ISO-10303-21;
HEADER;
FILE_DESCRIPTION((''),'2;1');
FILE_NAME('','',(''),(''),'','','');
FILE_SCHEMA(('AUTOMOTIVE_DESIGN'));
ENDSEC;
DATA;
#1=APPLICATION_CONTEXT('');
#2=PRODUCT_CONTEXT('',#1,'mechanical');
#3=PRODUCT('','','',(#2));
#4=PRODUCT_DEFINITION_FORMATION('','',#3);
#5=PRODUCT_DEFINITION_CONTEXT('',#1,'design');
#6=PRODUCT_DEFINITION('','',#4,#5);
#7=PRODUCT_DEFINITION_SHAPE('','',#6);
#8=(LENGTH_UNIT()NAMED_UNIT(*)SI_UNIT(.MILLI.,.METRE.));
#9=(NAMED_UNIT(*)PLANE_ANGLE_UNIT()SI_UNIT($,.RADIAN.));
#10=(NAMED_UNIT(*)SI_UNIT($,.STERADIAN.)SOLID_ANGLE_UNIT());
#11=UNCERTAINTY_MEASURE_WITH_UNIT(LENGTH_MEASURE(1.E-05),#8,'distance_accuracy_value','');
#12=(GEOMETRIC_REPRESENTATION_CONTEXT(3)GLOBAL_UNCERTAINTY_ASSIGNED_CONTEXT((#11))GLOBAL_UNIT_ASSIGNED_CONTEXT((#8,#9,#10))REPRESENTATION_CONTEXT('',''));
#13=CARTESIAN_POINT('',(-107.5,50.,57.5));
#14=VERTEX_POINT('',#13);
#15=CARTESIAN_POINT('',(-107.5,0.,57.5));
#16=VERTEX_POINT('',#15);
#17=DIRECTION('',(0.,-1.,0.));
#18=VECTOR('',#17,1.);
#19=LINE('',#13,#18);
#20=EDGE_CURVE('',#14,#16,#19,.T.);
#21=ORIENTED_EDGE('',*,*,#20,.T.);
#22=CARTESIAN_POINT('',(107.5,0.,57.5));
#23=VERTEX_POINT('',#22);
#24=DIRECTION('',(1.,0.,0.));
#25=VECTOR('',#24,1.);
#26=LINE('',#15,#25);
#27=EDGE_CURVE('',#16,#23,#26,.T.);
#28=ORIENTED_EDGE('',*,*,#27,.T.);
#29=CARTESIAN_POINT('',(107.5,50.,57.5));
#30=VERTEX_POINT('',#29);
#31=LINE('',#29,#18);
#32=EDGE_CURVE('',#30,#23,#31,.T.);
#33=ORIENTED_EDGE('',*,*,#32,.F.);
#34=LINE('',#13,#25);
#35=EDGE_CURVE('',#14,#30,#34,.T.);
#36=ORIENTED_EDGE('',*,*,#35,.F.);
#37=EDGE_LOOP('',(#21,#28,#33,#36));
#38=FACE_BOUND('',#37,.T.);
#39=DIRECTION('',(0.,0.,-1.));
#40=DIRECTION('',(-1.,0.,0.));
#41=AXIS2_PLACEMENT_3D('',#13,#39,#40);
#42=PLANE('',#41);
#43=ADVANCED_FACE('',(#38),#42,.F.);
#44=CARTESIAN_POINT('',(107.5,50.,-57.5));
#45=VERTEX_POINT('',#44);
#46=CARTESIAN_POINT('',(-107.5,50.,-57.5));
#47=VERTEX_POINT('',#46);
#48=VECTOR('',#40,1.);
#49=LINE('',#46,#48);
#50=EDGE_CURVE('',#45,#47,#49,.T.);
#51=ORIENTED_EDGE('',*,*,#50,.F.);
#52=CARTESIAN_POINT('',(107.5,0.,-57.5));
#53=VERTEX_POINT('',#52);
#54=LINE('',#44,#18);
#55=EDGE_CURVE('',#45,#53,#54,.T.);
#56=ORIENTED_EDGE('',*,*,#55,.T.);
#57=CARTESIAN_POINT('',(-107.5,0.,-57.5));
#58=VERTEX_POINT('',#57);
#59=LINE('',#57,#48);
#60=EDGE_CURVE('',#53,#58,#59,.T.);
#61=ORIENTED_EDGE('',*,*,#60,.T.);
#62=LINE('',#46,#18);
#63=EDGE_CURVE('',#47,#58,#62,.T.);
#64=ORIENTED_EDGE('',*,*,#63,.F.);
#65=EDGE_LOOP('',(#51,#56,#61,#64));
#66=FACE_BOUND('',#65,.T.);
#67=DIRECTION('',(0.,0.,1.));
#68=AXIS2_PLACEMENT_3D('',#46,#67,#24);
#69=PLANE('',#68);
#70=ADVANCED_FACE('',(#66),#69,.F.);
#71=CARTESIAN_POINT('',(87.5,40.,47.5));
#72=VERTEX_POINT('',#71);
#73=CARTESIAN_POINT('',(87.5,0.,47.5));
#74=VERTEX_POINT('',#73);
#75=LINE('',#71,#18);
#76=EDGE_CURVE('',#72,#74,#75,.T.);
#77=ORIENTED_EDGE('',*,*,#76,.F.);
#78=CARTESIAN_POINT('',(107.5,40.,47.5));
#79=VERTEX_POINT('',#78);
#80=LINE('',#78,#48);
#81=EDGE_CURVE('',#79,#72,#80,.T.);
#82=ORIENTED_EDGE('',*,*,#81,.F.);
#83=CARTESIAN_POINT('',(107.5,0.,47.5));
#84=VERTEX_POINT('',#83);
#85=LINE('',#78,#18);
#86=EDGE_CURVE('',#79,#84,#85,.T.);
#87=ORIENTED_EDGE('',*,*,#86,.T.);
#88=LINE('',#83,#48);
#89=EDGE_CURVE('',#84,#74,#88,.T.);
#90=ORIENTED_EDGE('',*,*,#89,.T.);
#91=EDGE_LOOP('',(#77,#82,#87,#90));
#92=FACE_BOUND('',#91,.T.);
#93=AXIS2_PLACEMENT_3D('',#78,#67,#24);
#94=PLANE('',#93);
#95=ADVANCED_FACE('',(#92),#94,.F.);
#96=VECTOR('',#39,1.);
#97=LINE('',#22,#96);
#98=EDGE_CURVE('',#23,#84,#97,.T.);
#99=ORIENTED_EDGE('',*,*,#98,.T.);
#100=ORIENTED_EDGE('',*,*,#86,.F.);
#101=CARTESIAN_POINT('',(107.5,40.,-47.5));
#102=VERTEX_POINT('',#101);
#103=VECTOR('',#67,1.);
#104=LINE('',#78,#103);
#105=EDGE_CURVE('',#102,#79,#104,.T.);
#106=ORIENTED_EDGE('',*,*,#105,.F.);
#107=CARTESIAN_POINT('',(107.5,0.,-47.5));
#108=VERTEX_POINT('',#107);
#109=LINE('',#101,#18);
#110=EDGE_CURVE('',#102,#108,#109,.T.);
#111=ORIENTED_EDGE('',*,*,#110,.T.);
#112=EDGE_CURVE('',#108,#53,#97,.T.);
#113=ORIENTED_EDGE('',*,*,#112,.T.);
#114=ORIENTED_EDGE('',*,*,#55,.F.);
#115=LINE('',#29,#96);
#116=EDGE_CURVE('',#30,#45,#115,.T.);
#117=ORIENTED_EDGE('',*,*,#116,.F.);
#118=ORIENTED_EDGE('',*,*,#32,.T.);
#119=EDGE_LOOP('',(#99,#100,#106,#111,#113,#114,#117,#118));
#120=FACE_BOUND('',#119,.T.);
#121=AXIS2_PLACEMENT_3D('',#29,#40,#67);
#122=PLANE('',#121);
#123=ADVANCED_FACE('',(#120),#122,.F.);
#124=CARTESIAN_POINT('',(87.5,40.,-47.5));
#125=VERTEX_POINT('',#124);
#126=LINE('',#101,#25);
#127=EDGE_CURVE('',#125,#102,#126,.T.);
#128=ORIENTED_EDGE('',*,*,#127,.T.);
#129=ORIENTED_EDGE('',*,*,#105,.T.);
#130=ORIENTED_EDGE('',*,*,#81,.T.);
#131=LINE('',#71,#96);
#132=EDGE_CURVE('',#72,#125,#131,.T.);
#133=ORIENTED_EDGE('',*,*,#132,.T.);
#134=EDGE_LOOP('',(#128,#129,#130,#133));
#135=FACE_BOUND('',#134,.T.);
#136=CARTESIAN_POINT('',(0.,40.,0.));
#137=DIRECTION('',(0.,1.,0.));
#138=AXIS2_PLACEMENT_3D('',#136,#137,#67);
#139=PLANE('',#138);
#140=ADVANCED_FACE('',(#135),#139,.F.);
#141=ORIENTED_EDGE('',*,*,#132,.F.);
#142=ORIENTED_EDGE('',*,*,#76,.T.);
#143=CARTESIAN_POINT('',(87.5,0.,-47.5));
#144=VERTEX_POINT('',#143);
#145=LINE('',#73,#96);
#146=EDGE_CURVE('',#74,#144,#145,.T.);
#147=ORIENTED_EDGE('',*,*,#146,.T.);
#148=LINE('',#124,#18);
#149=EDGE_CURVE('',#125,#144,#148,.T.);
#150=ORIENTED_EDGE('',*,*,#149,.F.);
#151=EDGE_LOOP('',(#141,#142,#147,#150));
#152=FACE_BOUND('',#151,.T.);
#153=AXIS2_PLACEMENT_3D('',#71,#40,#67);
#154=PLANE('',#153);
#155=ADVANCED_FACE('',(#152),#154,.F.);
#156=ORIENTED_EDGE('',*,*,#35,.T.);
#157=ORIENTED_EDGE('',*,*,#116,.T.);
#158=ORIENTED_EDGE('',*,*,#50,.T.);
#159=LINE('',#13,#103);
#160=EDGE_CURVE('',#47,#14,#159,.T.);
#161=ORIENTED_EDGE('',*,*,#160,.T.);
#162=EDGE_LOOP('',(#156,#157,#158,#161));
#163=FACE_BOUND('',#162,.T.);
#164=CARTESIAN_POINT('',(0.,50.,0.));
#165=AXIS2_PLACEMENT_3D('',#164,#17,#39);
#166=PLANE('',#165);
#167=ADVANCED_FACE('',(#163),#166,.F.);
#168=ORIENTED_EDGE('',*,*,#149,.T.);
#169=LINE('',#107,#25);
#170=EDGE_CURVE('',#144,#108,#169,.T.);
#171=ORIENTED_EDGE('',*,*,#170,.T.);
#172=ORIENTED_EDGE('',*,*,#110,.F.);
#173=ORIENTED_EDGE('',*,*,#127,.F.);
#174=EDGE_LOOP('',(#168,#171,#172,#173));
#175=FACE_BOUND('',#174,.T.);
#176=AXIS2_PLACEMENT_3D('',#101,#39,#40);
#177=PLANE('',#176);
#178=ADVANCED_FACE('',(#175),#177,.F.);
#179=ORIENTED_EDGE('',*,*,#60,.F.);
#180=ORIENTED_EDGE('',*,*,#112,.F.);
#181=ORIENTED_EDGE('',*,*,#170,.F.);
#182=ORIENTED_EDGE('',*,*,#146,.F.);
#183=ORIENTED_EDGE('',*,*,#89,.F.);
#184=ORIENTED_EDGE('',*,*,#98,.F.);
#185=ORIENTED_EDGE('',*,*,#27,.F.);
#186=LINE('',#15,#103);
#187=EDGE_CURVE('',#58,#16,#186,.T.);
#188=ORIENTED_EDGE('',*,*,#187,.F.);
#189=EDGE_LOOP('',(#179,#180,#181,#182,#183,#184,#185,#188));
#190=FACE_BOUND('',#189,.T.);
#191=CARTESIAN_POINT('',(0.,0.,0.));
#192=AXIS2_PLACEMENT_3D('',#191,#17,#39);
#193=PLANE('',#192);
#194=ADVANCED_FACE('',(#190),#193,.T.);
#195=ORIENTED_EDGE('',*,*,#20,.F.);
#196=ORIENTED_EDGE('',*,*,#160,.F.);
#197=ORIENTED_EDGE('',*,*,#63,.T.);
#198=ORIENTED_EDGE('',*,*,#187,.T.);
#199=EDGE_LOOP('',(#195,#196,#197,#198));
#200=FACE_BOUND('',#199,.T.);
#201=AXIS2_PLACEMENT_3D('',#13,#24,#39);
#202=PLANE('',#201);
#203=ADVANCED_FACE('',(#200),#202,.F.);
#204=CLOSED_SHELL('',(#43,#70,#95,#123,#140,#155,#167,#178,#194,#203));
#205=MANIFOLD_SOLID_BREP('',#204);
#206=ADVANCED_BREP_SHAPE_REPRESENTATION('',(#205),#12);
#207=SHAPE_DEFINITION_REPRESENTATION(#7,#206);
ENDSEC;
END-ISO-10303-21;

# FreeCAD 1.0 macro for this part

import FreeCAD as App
import Part
import Sketcher

doc = App.newDocument("Part")
body = doc.addObject("PartDesign::Body", "Body")

# Sketch on XZ plane
sketch1 = doc.addObject("Sketcher::SketchObject", "Sketch")
body.addObject(sketch1)
sketch1.AttachmentSupport = (doc.XZ_Plane, [""])
sketch1.MapMode = "FlatFace"
sketch1.addGeometry([
    Part.LineSegment(App.Vector(-107.5, -57.5, 0), App.Vector(-107.5, 57.5, 0)),
    Part.LineSegment(App.Vector(-107.5, 57.5, 0), App.Vector(107.5, 57.5, 0)),
    Part.LineSegment(App.Vector(107.5, 57.5, 0), App.Vector(107.5, -57.5, 0)),
    Part.LineSegment(App.Vector(107.5, -57.5, 0), App.Vector(-107.5, -57.5, 0)),
], False)
sketch1.addConstraint([
    Sketcher.Constraint("Coincident", 0, 2, 1, 1),
    Sketcher.Constraint("Coincident", 1, 2, 2, 1),
    Sketcher.Constraint("Coincident", 2, 2, 3, 1),
    Sketcher.Constraint("Coincident", 3, 2, 0, 1),
    Sketcher.Constraint("Vertical", 0),
    Sketcher.Constraint("Horizontal", 1),
    Sketcher.Constraint("Vertical", 2),
    Sketcher.Constraint("Horizontal", 3),
    Sketcher.Constraint("Symmetric", 0, 2, 2, 2, -1, 1),
    Sketcher.Constraint("DistanceX", 1, 1, 1, 2, 215.0),
    Sketcher.Constraint("DistanceY", 0, 1, 0, 2, 115.0),
])
pad1 = doc.addObject("PartDesign::Pad", "Pad")
body.addObject(pad1)
pad1.Profile = sketch1
pad1.Length = 50
pad1.Reversed = True

# Sketch on XZ plane
sketch2 = doc.addObject("Sketcher::SketchObject", "Sketch001")
body.addObject(sketch2)
sketch2.AttachmentSupport = (doc.XZ_Plane, [""])
sketch2.MapMode = "FlatFace"
sketch2.addGeometry([
    Part.LineSegment(App.Vector(87.5, 47.5, 0), App.Vector(87.5, -47.5, 0)),
    Part.LineSegment(App.Vector(87.5, -47.5, 0), App.Vector(107.5, -47.5, 0)),
    Part.LineSegment(App.Vector(107.5, -47.5, 0), App.Vector(107.5, 47.5, 0)),
    Part.LineSegment(App.Vector(107.5, 47.5, 0), App.Vector(87.5, 47.5, 0)),
], False)
sketch2.addConstraint([
    Sketcher.Constraint("Coincident", 0, 2, 1, 1),
    Sketcher.Constraint("Coincident", 1, 2, 2, 1),
    Sketcher.Constraint("Coincident", 2, 2, 3, 1),
    Sketcher.Constraint("Coincident", 3, 2, 0, 1),
    Sketcher.Constraint("Vertical", 0),
    Sketcher.Constraint("Horizontal", 1),
    Sketcher.Constraint("Vertical", 2),
    Sketcher.Constraint("Horizontal", 3),
    Sketcher.Constraint("DistanceX", 1, 1, 1, 2, 20.0),
    Sketcher.Constraint("DistanceY", 0, 2, 0, 1, 95.0),
    Sketcher.Constraint("DistanceX", -1, 1, 0, 2, 87.5),
    Sketcher.Constraint("DistanceY", 0, 2, -1, 1, 47.5),
])
pocket1 = doc.addObject("PartDesign::Pocket", "Pocket")
body.addObject(pocket1)
pocket1.Profile = sketch2
pocket1.Length = 40

doc.recompute()
